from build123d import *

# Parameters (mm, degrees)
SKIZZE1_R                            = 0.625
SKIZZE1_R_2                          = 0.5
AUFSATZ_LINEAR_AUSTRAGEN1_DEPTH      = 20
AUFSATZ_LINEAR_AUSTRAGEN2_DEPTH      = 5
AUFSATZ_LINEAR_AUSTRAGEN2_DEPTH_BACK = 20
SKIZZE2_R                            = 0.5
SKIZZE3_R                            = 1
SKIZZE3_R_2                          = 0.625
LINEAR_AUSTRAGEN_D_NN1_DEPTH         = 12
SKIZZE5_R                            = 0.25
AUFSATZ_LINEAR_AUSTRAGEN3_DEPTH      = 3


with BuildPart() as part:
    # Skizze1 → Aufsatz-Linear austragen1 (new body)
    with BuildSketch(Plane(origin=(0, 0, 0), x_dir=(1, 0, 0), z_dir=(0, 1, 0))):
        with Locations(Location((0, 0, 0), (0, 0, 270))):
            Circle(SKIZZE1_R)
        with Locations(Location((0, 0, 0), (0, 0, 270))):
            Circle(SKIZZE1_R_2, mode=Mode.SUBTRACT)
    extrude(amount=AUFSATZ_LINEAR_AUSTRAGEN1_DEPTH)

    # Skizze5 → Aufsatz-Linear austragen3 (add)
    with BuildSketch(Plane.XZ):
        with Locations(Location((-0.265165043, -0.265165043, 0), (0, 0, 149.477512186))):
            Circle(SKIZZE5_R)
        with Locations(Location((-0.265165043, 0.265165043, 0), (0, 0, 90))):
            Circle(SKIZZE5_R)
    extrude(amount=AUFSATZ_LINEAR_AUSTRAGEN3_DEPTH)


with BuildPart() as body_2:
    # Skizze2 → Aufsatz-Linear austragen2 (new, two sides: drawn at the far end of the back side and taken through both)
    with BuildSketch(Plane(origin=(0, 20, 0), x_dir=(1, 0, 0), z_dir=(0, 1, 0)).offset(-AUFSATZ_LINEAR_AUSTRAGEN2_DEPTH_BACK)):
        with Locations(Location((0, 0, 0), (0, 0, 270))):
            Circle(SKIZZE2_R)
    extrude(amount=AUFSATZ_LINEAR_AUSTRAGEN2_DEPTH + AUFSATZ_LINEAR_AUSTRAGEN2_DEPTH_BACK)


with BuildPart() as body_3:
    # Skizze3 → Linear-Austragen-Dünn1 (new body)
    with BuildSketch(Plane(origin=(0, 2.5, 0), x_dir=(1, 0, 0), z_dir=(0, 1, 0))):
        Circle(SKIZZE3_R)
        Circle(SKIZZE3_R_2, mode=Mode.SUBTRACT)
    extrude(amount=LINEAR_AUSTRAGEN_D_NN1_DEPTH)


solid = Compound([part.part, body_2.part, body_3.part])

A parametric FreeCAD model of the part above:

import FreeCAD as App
import Part
import Sketcher
Q = App.Units.Quantity

doc = App.newDocument("Part")
body = doc.addObject("PartDesign::Body", "Body")

# Sketch on XZ plane
sketch1 = body.newObject("Sketcher::SketchObject", "Sketch")
sketch1.AttachmentSupport = (doc.getObject("XZ_Plane"), [""])
sketch1.MapMode = "FlatFace"
sketch1.addGeometry([
    Part.Circle(App.Vector(0, 0, 0), App.Vector(0, 0, 1), 0.6),
    Part.Circle(App.Vector(0, 0, 0), App.Vector(0, 0, 1), 0.5),
], False)
sketch1.addConstraint([
    Sketcher.Constraint("Coincident", 0, 3, -1, 1),
    Sketcher.Constraint("Coincident", 1, 3, -1, 1),
    Sketcher.Constraint("Diameter", 1, Q("1 mm")),
    Sketcher.Constraint("Diameter", 0, Q("1.25 mm")),
])
pad1 = body.newObject("PartDesign::Pad", "Pad")
pad1.Profile = sketch1
pad1.Length = 20
pad1.Reversed = True

# Sketch on XZ plane
sketch2 = body.newObject("Sketcher::SketchObject", "Sketch001")
sketch2.AttachmentSupport = (doc.getObject("XZ_Plane"), [""])
sketch2.MapMode = "FlatFace"
sketch2.addGeometry([
    Part.Circle(App.Vector(-0.27, -0.27, 0), App.Vector(0, 0, 1), 0.25),
    Part.Circle(App.Vector(-0.27, 0.27, 0), App.Vector(0, 0, 1), 0.25),
], False)
sketch2.addConstraint([
    Sketcher.Constraint("Equal", 0, 1),
    Sketcher.Constraint("Symmetric", 0, 3, 1, 3, -1),
    Sketcher.Constraint("Diameter", 0, Q("0.5 mm")),
    Sketcher.Constraint("DistanceY", 0, 3, 1, 3, Q("0.53033 mm")),
    Sketcher.Constraint("DistanceX", 0, 3, -1, 1, Q("0.265165 mm")),
])
pad2 = body.newObject("PartDesign::Pad", "Pad001")
pad2.Profile = sketch2
pad2.Length = 3
body2 = doc.addObject("PartDesign::Body", "Body001")

# Sketch on XZ plane
sketch3 = body2.newObject("Sketcher::SketchObject", "Sketch002")
sketch3.AttachmentSupport = (doc.getObject("XZ_Plane001"), [""])
sketch3.MapMode = "FlatFace"
sketch3.AttachmentOffset = App.Placement(App.Vector(0, 0, -20), App.Rotation())
sketch3.addGeometry(Part.Circle(App.Vector(0, 0, 0), App.Vector(0, 0, 1), 0.5), False)
sketch3.addConstraint([
    Sketcher.Constraint("Coincident", 0, 3, -1, 1),
    Sketcher.Constraint("Diameter", 0, Q("1 mm")),
])
pad3 = body2.newObject("PartDesign::Pad", "Pad002")
pad3.Profile = sketch3
pad3.Type = "TwoLengths"
pad3.Length = 5
pad3.Length2 = 20
pad3.Reversed = True
body3 = doc.addObject("PartDesign::Body", "Body002")

# Sketch on XZ plane
sketch4 = body3.newObject("Sketcher::SketchObject", "Sketch003")
sketch4.AttachmentSupport = (doc.getObject("XZ_Plane002"), [""])
sketch4.MapMode = "FlatFace"
sketch4.AttachmentOffset = App.Placement(App.Vector(0, 0, -2.5), App.Rotation())
sketch4.addGeometry([
    Part.Circle(App.Vector(0, 0, 0), App.Vector(0, 0, 1), 1),
    Part.Circle(App.Vector(0, 0, 0), App.Vector(0, 0, 1), 0.6),
], False)
sketch4.addConstraint([
    Sketcher.Constraint("Coincident", 0, 3, -1, 1),
    Sketcher.Constraint("Coincident", 1, 3, -1, 1),
    Sketcher.Constraint("Diameter", 0, Q("2 mm")),
    Sketcher.Constraint("Diameter", 1, Q("1.25 mm")),
])
pad4 = body3.newObject("PartDesign::Pad", "Pad003")
pad4.Profile = sketch4
pad4.Length = 12
pad4.Reversed = True

doc.recompute()
